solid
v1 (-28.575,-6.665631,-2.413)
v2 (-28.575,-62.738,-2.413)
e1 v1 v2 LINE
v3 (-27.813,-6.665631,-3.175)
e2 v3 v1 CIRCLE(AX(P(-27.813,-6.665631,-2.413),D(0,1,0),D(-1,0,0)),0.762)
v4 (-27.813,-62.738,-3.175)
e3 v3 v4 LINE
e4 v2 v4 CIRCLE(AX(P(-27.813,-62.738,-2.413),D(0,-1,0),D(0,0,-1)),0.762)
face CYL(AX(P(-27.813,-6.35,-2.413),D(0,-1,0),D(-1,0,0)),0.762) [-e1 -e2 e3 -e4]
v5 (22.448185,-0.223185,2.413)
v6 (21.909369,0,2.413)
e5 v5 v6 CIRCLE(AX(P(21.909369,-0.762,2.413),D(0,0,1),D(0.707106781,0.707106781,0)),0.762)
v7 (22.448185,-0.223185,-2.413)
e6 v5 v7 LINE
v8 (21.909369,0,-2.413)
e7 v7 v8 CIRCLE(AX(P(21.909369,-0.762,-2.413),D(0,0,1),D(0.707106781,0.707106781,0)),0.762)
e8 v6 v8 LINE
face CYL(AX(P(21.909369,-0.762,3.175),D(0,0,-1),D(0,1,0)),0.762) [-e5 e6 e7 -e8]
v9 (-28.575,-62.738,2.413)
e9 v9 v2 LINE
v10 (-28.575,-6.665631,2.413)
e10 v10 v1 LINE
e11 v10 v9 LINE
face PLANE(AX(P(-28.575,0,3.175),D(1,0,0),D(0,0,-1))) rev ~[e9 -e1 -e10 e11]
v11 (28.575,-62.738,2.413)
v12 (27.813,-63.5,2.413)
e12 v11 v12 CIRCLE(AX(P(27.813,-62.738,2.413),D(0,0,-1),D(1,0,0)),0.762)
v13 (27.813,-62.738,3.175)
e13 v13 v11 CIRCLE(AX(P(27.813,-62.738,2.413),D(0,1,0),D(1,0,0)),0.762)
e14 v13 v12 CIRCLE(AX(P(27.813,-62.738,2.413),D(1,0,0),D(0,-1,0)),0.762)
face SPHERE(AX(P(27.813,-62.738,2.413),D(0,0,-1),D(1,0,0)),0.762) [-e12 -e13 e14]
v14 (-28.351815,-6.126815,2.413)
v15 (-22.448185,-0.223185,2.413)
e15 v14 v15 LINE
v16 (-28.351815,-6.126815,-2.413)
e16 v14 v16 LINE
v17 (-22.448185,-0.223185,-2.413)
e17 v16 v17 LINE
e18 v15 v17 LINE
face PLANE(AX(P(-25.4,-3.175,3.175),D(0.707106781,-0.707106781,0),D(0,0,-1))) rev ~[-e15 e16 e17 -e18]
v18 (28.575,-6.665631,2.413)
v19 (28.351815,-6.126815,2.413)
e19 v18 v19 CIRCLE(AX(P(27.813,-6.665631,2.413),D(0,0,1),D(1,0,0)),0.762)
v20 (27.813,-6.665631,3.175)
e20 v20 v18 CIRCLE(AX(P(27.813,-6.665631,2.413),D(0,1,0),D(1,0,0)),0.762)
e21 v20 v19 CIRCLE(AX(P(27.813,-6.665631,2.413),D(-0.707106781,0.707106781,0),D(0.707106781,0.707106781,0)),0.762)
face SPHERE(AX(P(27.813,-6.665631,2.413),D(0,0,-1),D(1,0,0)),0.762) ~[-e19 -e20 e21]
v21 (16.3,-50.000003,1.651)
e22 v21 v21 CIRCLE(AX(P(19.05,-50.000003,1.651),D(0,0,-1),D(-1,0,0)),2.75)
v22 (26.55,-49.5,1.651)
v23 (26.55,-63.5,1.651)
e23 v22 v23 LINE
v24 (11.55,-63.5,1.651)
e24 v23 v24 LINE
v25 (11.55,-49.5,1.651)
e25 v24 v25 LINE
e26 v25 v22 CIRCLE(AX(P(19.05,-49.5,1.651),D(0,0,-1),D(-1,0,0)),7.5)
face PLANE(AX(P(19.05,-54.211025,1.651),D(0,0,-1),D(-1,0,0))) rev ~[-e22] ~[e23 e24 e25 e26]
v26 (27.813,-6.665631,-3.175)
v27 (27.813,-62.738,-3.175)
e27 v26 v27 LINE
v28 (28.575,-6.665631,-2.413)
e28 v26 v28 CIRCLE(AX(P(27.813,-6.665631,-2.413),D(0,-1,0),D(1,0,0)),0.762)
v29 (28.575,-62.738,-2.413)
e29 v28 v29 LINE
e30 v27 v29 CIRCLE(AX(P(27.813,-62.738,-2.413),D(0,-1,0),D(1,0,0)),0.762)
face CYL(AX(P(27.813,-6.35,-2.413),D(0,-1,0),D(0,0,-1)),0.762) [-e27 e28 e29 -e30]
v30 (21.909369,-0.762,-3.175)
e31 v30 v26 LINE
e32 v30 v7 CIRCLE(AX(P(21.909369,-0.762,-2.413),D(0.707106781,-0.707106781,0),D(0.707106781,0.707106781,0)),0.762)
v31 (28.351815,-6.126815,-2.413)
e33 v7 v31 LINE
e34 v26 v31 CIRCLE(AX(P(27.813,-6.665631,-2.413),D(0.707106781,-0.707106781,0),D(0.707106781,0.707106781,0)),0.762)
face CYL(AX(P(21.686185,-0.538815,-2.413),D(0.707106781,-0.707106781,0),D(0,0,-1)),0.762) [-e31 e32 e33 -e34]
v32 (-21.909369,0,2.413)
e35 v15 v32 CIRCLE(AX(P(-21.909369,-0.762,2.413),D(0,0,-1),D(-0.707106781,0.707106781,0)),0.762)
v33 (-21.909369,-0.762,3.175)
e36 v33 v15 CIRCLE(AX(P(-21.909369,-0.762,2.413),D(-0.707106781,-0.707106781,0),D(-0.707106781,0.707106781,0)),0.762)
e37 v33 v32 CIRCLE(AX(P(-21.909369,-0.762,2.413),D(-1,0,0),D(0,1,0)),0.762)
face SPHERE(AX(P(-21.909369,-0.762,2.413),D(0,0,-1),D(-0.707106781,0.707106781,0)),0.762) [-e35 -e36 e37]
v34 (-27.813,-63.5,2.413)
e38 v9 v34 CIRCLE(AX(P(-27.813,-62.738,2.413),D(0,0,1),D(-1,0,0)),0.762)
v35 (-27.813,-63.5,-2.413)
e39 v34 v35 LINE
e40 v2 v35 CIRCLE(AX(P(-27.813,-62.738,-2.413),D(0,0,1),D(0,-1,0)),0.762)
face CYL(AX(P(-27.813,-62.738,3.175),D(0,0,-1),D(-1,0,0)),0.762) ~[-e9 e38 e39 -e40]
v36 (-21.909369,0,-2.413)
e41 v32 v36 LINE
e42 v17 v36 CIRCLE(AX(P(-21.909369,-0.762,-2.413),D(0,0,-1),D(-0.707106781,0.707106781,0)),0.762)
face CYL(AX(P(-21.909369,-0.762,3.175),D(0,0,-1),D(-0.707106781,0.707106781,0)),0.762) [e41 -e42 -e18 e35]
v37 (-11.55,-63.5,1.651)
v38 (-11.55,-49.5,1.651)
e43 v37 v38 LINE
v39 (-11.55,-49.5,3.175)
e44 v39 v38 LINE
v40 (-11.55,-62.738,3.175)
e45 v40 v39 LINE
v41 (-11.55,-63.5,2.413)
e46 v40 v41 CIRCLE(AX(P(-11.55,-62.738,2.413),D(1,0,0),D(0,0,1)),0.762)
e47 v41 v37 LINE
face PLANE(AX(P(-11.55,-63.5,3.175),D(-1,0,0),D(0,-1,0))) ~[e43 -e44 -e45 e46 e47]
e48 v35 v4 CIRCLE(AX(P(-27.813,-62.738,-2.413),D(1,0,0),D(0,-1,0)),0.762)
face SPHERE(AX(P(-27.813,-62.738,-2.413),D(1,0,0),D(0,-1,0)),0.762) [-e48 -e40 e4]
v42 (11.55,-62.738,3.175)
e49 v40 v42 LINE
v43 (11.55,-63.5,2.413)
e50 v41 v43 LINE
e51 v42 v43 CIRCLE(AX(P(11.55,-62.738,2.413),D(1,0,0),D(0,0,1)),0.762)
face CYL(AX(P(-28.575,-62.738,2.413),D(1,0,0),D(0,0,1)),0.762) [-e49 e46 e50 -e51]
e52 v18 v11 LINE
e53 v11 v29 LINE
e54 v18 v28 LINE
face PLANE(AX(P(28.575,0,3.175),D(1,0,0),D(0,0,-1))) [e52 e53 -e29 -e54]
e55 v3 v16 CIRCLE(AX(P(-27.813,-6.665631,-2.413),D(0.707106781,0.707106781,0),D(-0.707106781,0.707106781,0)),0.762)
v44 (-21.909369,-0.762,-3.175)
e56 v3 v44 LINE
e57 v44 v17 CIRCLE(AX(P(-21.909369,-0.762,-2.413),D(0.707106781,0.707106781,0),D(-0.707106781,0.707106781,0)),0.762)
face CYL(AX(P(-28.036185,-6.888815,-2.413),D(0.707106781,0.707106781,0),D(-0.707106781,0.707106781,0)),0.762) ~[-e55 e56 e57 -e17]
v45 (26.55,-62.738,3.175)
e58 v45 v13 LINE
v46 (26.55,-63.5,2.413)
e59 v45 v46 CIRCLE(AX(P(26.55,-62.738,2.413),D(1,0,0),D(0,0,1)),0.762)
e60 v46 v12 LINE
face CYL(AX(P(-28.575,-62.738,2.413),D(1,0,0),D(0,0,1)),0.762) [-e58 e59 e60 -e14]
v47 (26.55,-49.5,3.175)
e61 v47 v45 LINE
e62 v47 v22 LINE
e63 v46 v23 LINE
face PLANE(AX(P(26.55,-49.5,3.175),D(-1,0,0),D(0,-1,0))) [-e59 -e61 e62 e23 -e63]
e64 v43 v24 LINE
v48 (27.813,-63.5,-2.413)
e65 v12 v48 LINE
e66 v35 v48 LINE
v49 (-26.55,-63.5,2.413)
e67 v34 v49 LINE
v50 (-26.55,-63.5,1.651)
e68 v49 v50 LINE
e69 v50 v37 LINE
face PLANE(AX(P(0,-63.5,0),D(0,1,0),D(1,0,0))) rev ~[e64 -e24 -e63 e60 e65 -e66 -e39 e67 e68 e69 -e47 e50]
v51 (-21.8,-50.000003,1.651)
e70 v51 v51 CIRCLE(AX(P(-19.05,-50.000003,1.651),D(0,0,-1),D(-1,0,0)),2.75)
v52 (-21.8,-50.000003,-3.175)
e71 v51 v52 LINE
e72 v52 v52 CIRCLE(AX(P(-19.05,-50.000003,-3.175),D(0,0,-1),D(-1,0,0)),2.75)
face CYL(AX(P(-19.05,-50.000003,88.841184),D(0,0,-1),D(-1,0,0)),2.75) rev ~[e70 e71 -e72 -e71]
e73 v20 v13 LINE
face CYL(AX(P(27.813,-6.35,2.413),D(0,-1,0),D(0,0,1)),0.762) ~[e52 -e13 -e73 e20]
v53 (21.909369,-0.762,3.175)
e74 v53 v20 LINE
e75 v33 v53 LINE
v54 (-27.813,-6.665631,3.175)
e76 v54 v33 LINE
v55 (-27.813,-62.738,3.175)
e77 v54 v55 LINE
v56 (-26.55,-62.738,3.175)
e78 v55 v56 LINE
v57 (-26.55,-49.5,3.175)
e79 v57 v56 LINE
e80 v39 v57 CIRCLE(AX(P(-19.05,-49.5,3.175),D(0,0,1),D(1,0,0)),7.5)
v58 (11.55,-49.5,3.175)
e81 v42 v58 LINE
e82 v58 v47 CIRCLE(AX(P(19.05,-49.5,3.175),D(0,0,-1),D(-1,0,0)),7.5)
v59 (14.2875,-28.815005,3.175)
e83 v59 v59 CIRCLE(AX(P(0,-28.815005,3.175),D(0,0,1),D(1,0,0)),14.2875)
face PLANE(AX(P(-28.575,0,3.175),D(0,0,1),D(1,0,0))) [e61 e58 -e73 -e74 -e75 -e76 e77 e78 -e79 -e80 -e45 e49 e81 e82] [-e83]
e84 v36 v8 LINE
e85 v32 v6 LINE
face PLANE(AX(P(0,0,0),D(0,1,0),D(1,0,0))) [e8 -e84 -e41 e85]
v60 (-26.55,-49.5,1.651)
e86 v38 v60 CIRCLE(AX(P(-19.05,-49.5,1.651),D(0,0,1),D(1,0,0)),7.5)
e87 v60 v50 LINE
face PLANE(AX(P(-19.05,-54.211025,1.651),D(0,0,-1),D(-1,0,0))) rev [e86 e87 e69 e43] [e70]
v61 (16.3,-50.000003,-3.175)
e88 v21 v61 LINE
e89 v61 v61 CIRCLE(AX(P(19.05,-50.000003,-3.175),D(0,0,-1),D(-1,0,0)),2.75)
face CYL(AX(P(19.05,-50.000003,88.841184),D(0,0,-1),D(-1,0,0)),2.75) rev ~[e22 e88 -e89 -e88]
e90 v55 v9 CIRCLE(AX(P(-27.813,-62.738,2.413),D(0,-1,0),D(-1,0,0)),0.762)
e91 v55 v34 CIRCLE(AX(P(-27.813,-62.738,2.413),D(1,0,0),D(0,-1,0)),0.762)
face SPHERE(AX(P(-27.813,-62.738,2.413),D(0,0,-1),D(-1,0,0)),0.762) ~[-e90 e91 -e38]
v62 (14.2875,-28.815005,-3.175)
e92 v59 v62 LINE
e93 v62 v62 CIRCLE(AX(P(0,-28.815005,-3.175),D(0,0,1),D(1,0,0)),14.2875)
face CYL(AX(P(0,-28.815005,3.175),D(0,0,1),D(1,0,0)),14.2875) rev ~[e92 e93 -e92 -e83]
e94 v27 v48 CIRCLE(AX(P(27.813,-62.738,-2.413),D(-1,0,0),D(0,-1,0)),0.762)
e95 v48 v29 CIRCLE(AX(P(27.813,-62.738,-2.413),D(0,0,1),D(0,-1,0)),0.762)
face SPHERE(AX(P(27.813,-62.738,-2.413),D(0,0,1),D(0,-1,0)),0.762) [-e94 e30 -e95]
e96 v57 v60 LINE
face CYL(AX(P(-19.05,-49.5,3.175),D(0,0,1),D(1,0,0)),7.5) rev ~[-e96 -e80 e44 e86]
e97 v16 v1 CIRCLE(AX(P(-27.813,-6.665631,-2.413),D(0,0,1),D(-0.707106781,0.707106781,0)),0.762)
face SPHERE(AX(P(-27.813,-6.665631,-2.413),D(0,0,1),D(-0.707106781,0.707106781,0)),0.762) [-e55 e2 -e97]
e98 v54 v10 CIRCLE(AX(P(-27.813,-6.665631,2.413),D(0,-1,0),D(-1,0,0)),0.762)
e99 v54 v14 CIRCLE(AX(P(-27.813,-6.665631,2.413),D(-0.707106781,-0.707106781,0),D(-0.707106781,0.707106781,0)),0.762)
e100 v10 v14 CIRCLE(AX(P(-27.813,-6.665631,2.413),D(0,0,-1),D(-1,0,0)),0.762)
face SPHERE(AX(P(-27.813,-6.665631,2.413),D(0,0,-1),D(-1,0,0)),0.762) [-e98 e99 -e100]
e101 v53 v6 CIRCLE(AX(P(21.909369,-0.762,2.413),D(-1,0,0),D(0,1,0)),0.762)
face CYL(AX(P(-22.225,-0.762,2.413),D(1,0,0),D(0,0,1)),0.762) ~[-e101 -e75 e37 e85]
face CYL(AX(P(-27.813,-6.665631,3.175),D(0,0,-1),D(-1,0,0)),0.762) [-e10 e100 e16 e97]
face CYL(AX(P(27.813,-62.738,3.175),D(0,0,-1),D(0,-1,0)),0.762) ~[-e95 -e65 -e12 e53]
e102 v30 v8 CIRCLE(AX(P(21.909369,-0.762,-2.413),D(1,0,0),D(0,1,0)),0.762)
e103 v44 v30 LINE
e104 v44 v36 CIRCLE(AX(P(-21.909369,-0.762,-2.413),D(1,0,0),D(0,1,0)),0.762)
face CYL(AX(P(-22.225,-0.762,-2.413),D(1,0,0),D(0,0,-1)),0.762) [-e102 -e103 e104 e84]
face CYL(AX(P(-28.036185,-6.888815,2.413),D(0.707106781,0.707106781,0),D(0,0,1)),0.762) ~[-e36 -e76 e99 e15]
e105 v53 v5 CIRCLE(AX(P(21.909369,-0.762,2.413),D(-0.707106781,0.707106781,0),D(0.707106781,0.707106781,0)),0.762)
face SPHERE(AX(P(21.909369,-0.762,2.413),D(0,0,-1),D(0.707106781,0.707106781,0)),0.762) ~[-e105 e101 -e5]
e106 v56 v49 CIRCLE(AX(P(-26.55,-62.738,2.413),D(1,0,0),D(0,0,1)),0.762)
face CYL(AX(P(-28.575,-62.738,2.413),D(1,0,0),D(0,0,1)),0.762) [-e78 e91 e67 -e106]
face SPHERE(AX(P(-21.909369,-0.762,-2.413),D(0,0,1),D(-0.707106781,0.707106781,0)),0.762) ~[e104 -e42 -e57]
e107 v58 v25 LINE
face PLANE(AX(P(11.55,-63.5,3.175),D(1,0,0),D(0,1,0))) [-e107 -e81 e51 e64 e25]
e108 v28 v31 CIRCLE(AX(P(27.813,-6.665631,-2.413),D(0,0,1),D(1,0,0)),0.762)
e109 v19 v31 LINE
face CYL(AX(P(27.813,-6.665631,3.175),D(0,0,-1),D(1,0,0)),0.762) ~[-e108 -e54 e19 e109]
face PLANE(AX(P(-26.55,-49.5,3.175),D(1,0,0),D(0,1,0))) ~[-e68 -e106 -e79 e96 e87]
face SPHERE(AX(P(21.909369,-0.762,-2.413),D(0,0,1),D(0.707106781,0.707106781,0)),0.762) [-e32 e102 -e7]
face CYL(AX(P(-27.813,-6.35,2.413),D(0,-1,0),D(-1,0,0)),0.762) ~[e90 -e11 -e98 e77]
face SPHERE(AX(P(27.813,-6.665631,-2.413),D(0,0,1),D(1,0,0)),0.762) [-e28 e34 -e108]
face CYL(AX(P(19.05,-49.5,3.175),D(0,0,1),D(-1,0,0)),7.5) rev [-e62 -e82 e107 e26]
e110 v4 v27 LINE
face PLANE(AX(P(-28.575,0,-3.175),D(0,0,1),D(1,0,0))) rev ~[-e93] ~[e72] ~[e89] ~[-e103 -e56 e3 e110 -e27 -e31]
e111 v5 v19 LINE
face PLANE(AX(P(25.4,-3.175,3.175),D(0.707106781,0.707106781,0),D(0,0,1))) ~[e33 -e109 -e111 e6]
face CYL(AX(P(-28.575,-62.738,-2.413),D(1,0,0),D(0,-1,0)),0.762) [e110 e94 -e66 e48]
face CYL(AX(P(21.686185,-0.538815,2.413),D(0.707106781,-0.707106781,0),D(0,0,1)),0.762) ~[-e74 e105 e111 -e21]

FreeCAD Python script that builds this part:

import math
import FreeCAD as App
import Part
import Sketcher

V = App.Vector
Q = App.Units.Quantity


def edges_at(feature, points):
    """Names of the edges that pass closest to the given points."""
    edges = feature.Shape.Edges
    near = lambda p: min(range(len(edges)), key=lambda i: edges[i].distToShape(Part.Vertex(*p))[0])
    return sorted({f"Edge{near(p) + 1}" for p in points})

doc = App.newDocument("Part")
params = doc.addObject("Spreadsheet::Sheet", "Params")
for row, (alias, value) in enumerate([
    ("sketch1_width", "2.25 in"),
    ("sketch1_height", "0.25 in"),
    ("pad1_length", "2.5 in"),
    ("sketch2_diameter", "1.125 in"),
    ("chamfer_size", "0.25 in"),
    ("hole_diameter", "5.5 mm"),
    ("fillet_radius", "0.03 in"),
    ("pocket2_length", "0.06 in"),
], start=1):
    params.set(f"A{row}", alias)
    params.set(f"B{row}", "=" + value)
    params.setAlias(f"B{row}", alias)

body = doc.addObject("PartDesign::Body", "Body")

# Sketch on XZ plane
sketch1 = body.newObject("Sketcher::SketchObject", "Sketch")
sketch1.AttachmentSupport = (doc.getObject("XZ_Plane"), [""])
sketch1.MapMode = "FlatFace"
sketch1.addGeometry([
    Part.LineSegment(V(-29, -3, 0), V(-29, 3, 0)),
    Part.LineSegment(V(-29, 3, 0), V(29, 3, 0)),
    Part.LineSegment(V(29, 3, 0), V(29, -3, 0)),
    Part.LineSegment(V(29, -3, 0), V(-29, -3, 0)),
], False)
sketch1.addConstraint([
    Sketcher.Constraint("Coincident", 0, 2, 1, 1),
    Sketcher.Constraint("Coincident", 1, 2, 2, 1),
    Sketcher.Constraint("Coincident", 2, 2, 3, 1),
    Sketcher.Constraint("Coincident", 3, 2, 0, 1),
    Sketcher.Constraint("Vertical", 0),
    Sketcher.Constraint("Horizontal", 1),
    Sketcher.Constraint("Vertical", 2),
    Sketcher.Constraint("Horizontal", 3),
    Sketcher.Constraint("Symmetric", 0, 2, 2, 2, -1, 1),
    Sketcher.Constraint("DistanceX", 1, 1, 1, 2, Q("2.25 in")),
    Sketcher.Constraint("DistanceY", 0, 1, 0, 2, Q("0.25 in")),
])
sketch1.setExpression("Constraints[9]", "Params.sketch1_width")
sketch1.setExpression("Constraints[10]", "Params.sketch1_height")
pad1 = body.newObject("PartDesign::Pad", "Pad")
pad1.Profile = sketch1
pad1.setExpression("Length", "Params.pad1_length")

# Sketch on XY plane
sketch2 = body.newObject("Sketcher::SketchObject", "Sketch001")
sketch2.AttachmentSupport = (doc.getObject("XY_Plane"), [""])
sketch2.MapMode = "FlatFace"
sketch2.AttachmentOffset = App.Placement(V(0, 0, 0.125 * 25.4), App.Rotation())
sketch2.addGeometry(Part.Circle(V(0, -29, 0), V(0, 0, 1), 14), False)
sketch2.addConstraint([
    Sketcher.Constraint("PointOnObject", 0, 3, -2),
    Sketcher.Constraint("Diameter", 0, Q("1.125 in")),
    Sketcher.Constraint("DistanceY", 0, 3, -1, 1, Q("28.815005 mm")),
])
sketch2.setExpression("Constraints[1]", "Params.sketch2_diameter")
pocket1 = body.newObject("PartDesign::Pocket", "Pocket")
pocket1.Profile = sketch2
pocket1.Type = "ThroughAll"
doc.recompute()

chamfer = body.newObject("PartDesign::Chamfer", "Chamfer")
chamfer.Base = (pocket1, edges_at(pocket1, [(28.575, 0, 0), (-28.575, 0, 0)]))
chamfer.setExpression("Size", "Params.chamfer_size")

# Sketch on XY plane
sketch3 = body.newObject("Sketcher::SketchObject", "Sketch002")
sketch3.AttachmentSupport = (doc.getObject("XY_Plane"), [""])
sketch3.MapMode = "FlatFace"
sketch3.AttachmentOffset = App.Placement(V(0, 0, 0.125 * 25.4), App.Rotation())
sketch3.addGeometry([
    Part.Circle(V(-19.1, -50, 0), V(0, 0, 1), 2.8),
    Part.Circle(V(19.1, -50, 0), V(0, 0, 1), 2.8),
], False)
sketch3.addConstraint([
    Sketcher.Constraint("Equal", 0, 1),
    Sketcher.Constraint("Symmetric", 0, 3, 1, 3, -2),
    Sketcher.Constraint("DistanceX", 0, 3, 1, 3, Q("1.5 in")),
    Sketcher.Constraint("Diameter", 0, Q("5.5 mm")),
    Sketcher.Constraint("DistanceY", 0, 3, -1, 1, Q("50.000003 mm")),
])
doc.recompute()
hole = body.newObject("PartDesign::Hole", "Hole")
hole.Profile = sketch3
hole.ThreadType = "None"
hole.setExpression("Diameter", "Params.hole_diameter")
hole.DepthType = "ThroughAll"
doc.recompute()

fillet = body.newObject("PartDesign::Fillet", "Fillet")
fillet.Base = (hole, edges_at(hole, [
    (28.575, -63.5, 0),
    (0, -63.5, -3.175),
    (0, 0, 3.175),
    (0, 0, -3.175),
    (22.225, 0, 0),
    (-22.225, 0, 0),
    (25.4, -3.175, 3.175),
    (-25.4, -3.175, 3.175),
    (-28.575, -6.35, 0),
    (25.4, -3.175, -3.175),
    (-25.4, -3.175, -3.175),
    (28.575, -6.35, 0),
    (-28.575, -63.5, 0),
    (-28.575, -34.925, -3.175),
    (28.575, -34.925, -3.175),
    (28.575, -34.925, 3.175),
    (-28.575, -34.925, 3.175),
    (0, -63.5, 3.175),
]))
fillet.setExpression("Radius", "Params.fillet_radius")

# Sketch on XY plane
sketch4 = body.newObject("Sketcher::SketchObject", "Sketch003")
sketch4.AttachmentSupport = (doc.getObject("XY_Plane"), [""])
sketch4.MapMode = "FlatFace"
sketch4.AttachmentOffset = App.Placement(V(0, 0, 0.125 * 25.4), App.Rotation())
sketch4.addGeometry([
    Part.LineSegment(V(12, -50, 0), V(12, -64, 0)),
    Part.LineSegment(V(12, -64, 0), V(27, -64, 0)),
    Part.LineSegment(V(27, -64, 0), V(27, -50, 0)),
    Part.ArcOfCircle(Part.Circle(V(19, -50, 0), V(0, 0, 1), 8), math.radians(0), math.radians(180)),
], False)
sketch4.addConstraint([
    Sketcher.Constraint("Coincident", 0, 2, 1, 1),
    Sketcher.Constraint("Coincident", 1, 2, 2, 1),
    Sketcher.Constraint("Tangent", 2, 2, 3, 1),
    Sketcher.Constraint("Tangent", 3, 2, 0, 1),
    Sketcher.Constraint("Vertical", 0),
    Sketcher.Constraint("Horizontal", 1),
    Sketcher.Constraint("Vertical", 2),
    Sketcher.Constraint("DistanceY", 0, 2, -1, 1, Q("2.5 in")),
    Sketcher.Constraint("DistanceX", -1, 1, 3, 3, Q("0.75 in")),
    Sketcher.Constraint("Radius", 3, Q("7.5 mm")),
    Sketcher.Constraint("DistanceY", 0, 2, 0, 1, Q("14 mm")),
])
pocket2 = body.newObject("PartDesign::Pocket", "Pocket001")
pocket2.Profile = sketch4
pocket2.setExpression("Length", "Params.pocket2_length")
doc.recompute()

mirrored = body.newObject("PartDesign::Mirrored", "Mirrored")
mirrored.Originals = [pocket2]
mirrored.MirrorPlane = (doc.getObject("YZ_Plane"), [""])
body.Tip = mirrored

doc.recompute()
